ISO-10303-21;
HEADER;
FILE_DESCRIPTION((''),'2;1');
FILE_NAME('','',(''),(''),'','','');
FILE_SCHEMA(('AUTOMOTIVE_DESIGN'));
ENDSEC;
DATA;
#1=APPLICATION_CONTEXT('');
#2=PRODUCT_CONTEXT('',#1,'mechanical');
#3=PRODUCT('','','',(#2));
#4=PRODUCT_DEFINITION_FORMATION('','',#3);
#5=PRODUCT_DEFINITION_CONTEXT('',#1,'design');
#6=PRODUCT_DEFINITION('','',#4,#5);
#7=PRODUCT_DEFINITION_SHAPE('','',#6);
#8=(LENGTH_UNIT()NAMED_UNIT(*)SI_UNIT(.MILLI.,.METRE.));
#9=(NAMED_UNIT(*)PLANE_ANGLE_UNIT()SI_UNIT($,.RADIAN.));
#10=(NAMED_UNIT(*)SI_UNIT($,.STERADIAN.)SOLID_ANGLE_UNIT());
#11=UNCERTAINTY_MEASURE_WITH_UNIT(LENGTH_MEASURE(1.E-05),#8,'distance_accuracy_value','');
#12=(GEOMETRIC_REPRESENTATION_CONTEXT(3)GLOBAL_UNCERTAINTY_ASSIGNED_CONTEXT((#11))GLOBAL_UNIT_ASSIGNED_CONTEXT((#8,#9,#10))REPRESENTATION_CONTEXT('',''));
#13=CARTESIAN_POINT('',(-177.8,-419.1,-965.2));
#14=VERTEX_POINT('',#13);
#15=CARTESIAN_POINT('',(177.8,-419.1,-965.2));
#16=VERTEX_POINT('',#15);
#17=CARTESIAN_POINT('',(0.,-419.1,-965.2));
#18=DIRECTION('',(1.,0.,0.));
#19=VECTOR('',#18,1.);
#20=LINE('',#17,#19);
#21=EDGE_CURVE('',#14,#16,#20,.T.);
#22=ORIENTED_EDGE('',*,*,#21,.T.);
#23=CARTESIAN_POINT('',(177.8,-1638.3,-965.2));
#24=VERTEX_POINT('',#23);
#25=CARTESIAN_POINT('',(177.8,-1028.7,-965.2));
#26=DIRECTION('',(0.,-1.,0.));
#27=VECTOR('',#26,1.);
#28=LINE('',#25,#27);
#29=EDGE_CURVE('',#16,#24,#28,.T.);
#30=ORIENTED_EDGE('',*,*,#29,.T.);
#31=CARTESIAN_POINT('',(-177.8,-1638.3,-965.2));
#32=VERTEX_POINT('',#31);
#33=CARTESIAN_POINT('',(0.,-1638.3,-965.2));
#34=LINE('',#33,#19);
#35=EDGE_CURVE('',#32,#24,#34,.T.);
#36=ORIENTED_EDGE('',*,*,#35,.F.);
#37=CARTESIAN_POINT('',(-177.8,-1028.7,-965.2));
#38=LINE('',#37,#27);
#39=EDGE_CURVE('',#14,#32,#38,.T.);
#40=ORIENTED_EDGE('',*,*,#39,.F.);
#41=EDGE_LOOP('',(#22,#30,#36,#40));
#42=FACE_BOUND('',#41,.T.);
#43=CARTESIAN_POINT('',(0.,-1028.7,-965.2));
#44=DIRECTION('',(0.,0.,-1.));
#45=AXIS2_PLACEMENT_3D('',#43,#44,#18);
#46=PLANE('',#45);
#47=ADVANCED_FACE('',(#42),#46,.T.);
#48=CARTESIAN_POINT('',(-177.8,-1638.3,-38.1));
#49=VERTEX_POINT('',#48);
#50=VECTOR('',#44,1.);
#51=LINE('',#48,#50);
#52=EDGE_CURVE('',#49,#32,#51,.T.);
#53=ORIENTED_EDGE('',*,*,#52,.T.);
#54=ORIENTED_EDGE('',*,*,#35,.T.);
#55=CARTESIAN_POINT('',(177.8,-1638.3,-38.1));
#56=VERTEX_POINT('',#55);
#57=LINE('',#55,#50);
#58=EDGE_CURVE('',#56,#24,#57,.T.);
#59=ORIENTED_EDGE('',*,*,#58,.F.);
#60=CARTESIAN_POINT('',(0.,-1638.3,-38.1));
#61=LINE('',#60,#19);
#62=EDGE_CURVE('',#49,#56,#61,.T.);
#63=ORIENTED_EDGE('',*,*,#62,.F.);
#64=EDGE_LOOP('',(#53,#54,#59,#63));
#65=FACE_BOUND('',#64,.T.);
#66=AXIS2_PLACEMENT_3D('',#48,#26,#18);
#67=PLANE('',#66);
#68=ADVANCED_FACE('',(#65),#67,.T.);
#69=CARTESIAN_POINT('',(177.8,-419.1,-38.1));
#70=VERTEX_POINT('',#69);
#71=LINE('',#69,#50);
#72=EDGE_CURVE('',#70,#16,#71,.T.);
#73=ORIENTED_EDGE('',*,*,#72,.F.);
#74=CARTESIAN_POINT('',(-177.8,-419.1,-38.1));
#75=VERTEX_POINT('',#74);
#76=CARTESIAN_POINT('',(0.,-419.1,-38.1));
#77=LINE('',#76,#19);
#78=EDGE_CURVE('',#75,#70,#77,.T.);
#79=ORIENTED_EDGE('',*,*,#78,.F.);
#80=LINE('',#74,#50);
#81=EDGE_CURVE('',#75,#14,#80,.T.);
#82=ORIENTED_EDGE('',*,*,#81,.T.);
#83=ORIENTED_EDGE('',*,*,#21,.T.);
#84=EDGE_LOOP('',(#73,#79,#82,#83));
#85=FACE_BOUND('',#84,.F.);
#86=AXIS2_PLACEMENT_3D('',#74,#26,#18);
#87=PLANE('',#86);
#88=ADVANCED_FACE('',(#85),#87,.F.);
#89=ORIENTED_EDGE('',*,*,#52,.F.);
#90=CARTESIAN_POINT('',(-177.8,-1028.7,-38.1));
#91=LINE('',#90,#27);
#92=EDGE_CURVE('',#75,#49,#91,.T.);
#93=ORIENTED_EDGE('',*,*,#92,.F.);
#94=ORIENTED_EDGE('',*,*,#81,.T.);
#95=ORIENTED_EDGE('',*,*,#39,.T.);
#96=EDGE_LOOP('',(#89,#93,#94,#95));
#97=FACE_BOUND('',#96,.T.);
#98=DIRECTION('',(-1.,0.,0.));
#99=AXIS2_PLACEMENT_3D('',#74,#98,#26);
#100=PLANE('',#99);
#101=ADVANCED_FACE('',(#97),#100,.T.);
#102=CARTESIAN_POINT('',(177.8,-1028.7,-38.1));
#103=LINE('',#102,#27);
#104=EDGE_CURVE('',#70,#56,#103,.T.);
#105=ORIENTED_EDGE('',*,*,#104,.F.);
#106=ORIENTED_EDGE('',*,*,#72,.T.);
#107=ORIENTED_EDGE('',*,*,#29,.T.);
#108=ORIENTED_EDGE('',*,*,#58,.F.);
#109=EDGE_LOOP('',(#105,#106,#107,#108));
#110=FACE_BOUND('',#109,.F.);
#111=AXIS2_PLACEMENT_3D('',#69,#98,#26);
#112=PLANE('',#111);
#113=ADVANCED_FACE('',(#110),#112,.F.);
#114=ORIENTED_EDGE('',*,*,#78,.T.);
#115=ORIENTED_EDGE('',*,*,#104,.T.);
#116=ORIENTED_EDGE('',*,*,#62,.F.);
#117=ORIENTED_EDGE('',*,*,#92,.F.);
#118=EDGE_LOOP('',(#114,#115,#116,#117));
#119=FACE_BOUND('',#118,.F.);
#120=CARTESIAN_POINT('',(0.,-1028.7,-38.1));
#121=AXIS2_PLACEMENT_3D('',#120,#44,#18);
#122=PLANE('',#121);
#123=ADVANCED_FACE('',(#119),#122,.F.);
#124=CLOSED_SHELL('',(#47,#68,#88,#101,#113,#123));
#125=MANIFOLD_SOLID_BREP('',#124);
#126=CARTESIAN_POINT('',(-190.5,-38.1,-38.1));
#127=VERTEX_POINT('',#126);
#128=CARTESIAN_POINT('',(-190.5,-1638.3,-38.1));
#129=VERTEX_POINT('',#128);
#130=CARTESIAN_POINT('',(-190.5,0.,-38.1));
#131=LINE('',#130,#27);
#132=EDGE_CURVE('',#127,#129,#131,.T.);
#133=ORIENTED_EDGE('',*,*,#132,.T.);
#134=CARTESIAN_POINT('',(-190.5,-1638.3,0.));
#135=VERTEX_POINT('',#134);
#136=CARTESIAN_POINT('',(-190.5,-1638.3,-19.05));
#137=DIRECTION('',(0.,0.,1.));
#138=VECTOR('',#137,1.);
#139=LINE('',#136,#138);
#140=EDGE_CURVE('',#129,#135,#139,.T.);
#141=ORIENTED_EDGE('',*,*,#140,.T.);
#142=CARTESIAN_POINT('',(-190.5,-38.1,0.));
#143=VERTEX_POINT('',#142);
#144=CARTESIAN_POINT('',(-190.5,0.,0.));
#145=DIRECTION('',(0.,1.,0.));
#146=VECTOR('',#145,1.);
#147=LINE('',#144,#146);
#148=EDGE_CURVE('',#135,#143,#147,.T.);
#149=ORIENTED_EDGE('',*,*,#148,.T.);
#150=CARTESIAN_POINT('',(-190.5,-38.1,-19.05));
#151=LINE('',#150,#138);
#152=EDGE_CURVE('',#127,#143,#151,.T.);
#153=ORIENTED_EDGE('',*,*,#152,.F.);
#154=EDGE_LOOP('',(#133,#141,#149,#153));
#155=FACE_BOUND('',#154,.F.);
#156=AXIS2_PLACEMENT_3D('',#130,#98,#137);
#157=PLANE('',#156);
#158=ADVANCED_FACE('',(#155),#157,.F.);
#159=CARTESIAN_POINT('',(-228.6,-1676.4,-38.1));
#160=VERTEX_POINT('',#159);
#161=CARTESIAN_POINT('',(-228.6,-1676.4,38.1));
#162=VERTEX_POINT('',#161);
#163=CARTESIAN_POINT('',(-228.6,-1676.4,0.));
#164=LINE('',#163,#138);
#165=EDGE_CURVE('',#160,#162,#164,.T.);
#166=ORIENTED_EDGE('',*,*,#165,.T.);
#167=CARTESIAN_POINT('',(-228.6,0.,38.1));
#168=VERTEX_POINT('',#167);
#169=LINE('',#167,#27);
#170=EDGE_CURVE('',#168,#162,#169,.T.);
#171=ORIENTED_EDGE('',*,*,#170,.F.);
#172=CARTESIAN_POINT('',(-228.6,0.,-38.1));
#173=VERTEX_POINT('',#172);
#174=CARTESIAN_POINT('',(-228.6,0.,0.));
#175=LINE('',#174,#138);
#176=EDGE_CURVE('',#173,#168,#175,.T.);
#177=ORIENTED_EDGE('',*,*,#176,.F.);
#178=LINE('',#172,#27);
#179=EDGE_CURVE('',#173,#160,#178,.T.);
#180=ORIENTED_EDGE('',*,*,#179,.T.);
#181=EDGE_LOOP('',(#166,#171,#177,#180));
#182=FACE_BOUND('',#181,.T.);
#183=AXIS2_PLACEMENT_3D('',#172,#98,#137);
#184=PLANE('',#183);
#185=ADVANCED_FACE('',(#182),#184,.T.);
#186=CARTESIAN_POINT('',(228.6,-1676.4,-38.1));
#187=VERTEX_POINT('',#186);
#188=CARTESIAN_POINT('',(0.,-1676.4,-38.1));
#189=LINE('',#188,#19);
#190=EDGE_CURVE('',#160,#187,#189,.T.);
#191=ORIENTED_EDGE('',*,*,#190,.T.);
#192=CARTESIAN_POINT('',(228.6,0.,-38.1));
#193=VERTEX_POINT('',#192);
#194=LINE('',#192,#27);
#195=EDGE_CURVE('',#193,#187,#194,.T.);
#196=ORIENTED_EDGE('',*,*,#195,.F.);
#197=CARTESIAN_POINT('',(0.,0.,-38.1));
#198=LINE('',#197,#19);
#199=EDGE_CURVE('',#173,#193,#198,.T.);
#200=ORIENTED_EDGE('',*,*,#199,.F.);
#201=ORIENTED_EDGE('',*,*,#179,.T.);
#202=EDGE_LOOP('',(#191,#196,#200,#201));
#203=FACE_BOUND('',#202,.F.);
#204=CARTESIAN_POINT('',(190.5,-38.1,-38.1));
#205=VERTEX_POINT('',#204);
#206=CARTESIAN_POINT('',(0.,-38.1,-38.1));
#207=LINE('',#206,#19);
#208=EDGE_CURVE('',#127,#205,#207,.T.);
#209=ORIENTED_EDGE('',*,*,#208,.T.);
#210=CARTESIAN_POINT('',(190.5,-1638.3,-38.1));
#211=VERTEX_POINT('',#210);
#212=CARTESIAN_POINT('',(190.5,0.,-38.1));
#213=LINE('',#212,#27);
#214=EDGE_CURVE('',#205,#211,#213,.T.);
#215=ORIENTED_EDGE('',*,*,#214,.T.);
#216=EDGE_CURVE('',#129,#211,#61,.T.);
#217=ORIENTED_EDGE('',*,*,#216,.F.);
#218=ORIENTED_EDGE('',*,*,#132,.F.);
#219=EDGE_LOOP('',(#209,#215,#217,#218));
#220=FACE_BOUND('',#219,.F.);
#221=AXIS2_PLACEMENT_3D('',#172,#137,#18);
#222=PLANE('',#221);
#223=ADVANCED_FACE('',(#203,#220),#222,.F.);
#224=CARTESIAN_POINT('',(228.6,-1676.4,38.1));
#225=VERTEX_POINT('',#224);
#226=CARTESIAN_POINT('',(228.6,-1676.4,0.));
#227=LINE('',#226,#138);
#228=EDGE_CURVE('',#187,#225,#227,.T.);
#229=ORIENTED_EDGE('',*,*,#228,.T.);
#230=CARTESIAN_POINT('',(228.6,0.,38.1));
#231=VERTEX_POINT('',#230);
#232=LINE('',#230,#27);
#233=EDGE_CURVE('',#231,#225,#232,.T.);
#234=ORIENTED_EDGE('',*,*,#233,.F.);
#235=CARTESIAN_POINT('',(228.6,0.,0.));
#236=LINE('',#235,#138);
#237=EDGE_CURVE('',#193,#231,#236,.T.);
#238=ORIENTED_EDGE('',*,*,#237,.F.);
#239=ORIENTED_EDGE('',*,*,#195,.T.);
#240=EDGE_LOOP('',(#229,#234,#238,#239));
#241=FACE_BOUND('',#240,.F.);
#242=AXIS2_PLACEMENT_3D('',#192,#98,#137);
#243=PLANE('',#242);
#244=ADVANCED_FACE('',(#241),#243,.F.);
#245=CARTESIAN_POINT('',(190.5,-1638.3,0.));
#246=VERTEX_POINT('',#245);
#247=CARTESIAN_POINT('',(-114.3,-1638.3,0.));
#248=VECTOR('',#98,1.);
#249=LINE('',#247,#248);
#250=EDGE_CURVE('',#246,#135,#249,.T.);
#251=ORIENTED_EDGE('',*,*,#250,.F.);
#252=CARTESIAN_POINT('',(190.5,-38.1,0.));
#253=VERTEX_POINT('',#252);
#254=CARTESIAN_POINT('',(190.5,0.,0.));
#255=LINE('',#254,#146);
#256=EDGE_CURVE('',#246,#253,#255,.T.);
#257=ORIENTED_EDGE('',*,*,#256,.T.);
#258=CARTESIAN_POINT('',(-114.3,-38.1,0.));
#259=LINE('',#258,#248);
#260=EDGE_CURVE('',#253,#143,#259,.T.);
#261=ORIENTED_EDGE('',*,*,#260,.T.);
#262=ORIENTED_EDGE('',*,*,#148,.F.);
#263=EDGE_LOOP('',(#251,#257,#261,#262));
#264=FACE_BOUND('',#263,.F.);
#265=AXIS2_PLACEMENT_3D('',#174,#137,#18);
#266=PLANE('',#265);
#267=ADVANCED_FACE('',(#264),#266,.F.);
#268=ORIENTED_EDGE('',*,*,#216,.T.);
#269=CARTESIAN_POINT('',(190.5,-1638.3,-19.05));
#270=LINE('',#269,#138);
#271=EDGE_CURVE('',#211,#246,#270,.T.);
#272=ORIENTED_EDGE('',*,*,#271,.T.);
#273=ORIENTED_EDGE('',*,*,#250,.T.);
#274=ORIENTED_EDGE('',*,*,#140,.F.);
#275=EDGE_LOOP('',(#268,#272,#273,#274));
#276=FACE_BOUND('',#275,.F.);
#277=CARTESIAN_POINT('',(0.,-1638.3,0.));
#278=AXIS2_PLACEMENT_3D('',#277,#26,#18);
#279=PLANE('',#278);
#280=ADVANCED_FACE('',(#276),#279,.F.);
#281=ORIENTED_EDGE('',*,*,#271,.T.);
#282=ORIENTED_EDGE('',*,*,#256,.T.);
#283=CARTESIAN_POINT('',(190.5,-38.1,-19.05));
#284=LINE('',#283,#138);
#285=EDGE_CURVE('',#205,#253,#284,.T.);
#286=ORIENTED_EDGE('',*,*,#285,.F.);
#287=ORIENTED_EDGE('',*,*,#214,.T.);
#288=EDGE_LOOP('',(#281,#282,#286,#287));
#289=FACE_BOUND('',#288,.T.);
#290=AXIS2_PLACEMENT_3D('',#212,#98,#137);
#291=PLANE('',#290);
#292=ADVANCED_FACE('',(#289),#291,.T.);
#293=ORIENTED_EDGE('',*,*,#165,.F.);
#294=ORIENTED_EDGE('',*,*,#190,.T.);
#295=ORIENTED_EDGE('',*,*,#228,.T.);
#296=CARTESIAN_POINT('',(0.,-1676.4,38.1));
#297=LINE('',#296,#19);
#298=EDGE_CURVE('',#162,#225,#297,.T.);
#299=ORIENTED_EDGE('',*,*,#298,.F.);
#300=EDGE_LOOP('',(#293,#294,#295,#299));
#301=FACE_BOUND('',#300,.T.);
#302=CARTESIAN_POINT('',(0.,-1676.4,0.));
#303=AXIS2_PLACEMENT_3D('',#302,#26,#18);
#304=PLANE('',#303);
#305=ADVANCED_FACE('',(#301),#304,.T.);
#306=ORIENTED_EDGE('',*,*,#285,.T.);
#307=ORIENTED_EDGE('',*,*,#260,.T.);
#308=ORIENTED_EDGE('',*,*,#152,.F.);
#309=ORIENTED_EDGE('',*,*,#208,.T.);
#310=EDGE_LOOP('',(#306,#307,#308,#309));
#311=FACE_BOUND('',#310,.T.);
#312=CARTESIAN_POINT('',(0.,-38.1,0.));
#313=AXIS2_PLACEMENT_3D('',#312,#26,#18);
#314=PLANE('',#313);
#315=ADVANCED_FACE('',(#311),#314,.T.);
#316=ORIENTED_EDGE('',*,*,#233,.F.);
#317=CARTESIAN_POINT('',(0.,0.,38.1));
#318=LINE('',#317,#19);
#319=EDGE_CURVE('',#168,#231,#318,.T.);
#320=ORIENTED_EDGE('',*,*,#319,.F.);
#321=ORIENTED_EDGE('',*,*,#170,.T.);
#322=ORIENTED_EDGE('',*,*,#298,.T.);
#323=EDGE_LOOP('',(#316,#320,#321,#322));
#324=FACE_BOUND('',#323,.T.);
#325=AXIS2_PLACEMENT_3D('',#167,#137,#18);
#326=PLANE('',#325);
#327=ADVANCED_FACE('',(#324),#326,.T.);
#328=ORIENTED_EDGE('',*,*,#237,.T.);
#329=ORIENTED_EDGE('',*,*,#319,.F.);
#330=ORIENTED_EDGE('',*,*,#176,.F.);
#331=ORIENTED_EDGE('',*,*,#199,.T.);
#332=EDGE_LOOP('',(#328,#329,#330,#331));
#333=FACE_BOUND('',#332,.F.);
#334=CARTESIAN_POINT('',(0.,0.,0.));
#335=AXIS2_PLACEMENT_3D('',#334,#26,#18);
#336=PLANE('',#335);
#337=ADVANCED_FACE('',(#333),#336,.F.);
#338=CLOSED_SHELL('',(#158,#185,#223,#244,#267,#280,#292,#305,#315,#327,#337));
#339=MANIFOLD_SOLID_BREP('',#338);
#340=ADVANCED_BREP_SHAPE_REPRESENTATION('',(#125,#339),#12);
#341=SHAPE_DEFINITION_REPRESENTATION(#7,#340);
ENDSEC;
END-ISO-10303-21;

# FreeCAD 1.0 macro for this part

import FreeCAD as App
import Part
import Sketcher
Q = App.Units.Quantity


def faces_at(feature, points):
    """Names of the faces that lie closest to the given points."""
    faces = feature.Shape.Faces
    near = lambda p: min(range(len(faces)), key=lambda i: faces[i].distToShape(Part.Vertex(*p))[0])
    return sorted({f"Face{near(p) + 1}" for p in points})

doc = App.newDocument("Part")
body = doc.addObject("PartDesign::Body", "Body")

# Sketch on XZ plane
sketch1 = doc.addObject("Sketcher::SketchObject", "Sketch")
body.addObject(sketch1)
sketch1.AttachmentSupport = (doc.XZ_Plane, [""])
sketch1.MapMode = "FlatFace"
sketch1.addGeometry([
    Part.LineSegment(App.Vector(-228.6, 38.1, 0), App.Vector(-228.6, -38.1, 0)),
    Part.LineSegment(App.Vector(-228.6, -38.1, 0), App.Vector(228.6, -38.1, 0)),
    Part.LineSegment(App.Vector(228.6, -38.1, 0), App.Vector(228.6, 38.1, 0)),
    Part.LineSegment(App.Vector(228.6, 38.1, 0), App.Vector(-228.6, 38.1, 0)),
], False)
sketch1.addConstraint([
    Sketcher.Constraint("Coincident", 0, 2, 1, 1),
    Sketcher.Constraint("Coincident", 1, 2, 2, 1),
    Sketcher.Constraint("Coincident", 2, 2, 3, 1),
    Sketcher.Constraint("Coincident", 3, 2, 0, 1),
    Sketcher.Constraint("Vertical", 0),
    Sketcher.Constraint("Horizontal", 1),
    Sketcher.Constraint("Vertical", 2),
    Sketcher.Constraint("Horizontal", 3),
    Sketcher.Constraint("Symmetric", 0, 2, 2, 2, -1, 1),
    Sketcher.Constraint("DistanceX", 1, 1, 1, 2, Q("18 in")),
    Sketcher.Constraint("DistanceY", 0, 2, 0, 1, Q("3 in")),
])
pad1 = doc.addObject("PartDesign::Pad", "Pad")
body.addObject(pad1)
pad1.Profile = sketch1
pad1.Length = Q("66 in")
doc.recompute()

thickness = doc.addObject("PartDesign::Thickness", "Thickness")
body.addObject(thickness)
thickness.Base = (pad1, faces_at(pad1, [(0, -838.2, -38.1)]))
thickness.Value = Q("1.5 in")
thickness.Reversed = True
thickness.Join = "Arc"
body2 = doc.addObject("PartDesign::Body", "Body001")

# Sketch on XY plane
sketch2 = doc.addObject("Sketcher::SketchObject", "Sketch001")
body2.addObject(sketch2)
sketch2.AttachmentSupport = (doc.getObject("XY_Plane001"), [""])
sketch2.MapMode = "FlatFace"
sketch2.AttachmentOffset = App.Placement(App.Vector(0, 0, -1.5 * 25.4), App.Rotation())
sketch2.addGeometry([
    Part.LineSegment(App.Vector(-177.8, -1638.3, 0), App.Vector(-177.8, -419.1, 0)),
    Part.LineSegment(App.Vector(-177.8, -419.1, 0), App.Vector(177.8, -419.1, 0)),
    Part.LineSegment(App.Vector(177.8, -419.1, 0), App.Vector(177.8, -1638.3, 0)),
    Part.LineSegment(App.Vector(177.8, -1638.3, 0), App.Vector(-177.8, -1638.3, 0)),
], False)
sketch2.addConstraint([
    Sketcher.Constraint("Coincident", 0, 2, 1, 1),
    Sketcher.Constraint("Coincident", 1, 2, 2, 1),
    Sketcher.Constraint("Coincident", 2, 2, 3, 1),
    Sketcher.Constraint("Coincident", 3, 2, 0, 1),
    Sketcher.Constraint("Vertical", 0),
    Sketcher.Constraint("Horizontal", 1),
    Sketcher.Constraint("Vertical", 2),
    Sketcher.Constraint("Horizontal", 3),
    Sketcher.Constraint("DistanceX", 1, 1, 1, 2, Q("14 in")),
    Sketcher.Constraint("DistanceY", 0, 1, 0, 2, Q("48 in")),
    Sketcher.Constraint("DistanceX", 0, 2, -1, 1, Q("7 in")),
    Sketcher.Constraint("DistanceY", 0, 2, -1, 1, Q("16.5 in")),
])
pad2 = doc.addObject("PartDesign::Pad", "Pad001")
body2.addObject(pad2)
pad2.Profile = sketch2
pad2.Length = Q("36.5 in")
pad2.Reversed = True

doc.recompute()
